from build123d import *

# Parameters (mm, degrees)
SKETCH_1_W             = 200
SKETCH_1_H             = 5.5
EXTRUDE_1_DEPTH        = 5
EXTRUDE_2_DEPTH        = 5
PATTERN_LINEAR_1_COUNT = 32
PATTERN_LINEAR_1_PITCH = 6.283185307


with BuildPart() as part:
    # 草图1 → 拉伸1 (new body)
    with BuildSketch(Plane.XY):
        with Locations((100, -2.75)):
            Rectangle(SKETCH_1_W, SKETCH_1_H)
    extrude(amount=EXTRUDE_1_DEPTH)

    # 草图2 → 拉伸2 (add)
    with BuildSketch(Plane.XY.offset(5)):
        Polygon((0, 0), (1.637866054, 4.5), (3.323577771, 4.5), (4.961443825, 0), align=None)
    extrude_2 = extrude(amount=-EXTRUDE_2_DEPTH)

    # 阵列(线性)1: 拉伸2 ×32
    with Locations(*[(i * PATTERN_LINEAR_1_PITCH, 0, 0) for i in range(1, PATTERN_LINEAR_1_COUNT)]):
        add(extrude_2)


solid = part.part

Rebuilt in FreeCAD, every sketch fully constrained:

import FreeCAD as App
import Part
import Sketcher
Q = App.Units.Quantity


def add_polygon(sketch, points):
    """Adds a closed chain of lines whose ends are joined by coincident constraints."""
    first, n = sketch.GeometryCount, len(points)
    for a, b in zip(points, points[1:] + points[:1]):
        sketch.addGeometry(Part.LineSegment(App.Vector(*a, 0), App.Vector(*b, 0)), False)
    for i in range(n):
        sketch.addConstraint(Sketcher.Constraint("Coincident", first + i, 2, first + (i + 1) % n, 1))

doc = App.newDocument("Part")
body = doc.addObject("PartDesign::Body", "Body")

# Sketch on XY plane
sketch1 = body.newObject("Sketcher::SketchObject", "Sketch")
sketch1.AttachmentSupport = (doc.getObject("XY_Plane"), [""])
sketch1.MapMode = "FlatFace"
add_polygon(sketch1, [(0, 0), (0, -5.5), (200, -5.5), (200, 0)])  # lines 0-3
sketch1.addConstraint([
    Sketcher.Constraint("Vertical", 0),
    Sketcher.Constraint("Horizontal", 1),
    Sketcher.Constraint("Vertical", 2),
    Sketcher.Constraint("Horizontal", 3),
    Sketcher.Constraint("Coincident", 3, 2, -1, 1),
    Sketcher.Constraint("DistanceX", 1, 1, 1, 2, 200.0),
    Sketcher.Constraint("DistanceY", 0, 2, 0, 1, 5.5),
])
pad1 = body.newObject("PartDesign::Pad", "Pad")
pad1.Profile = sketch1
pad1.Length = 5

# Sketch on XY plane
sketch2 = body.newObject("Sketcher::SketchObject", "Sketch001")
sketch2.AttachmentSupport = (doc.getObject("XY_Plane"), [""])
sketch2.MapMode = "FlatFace"
sketch2.AttachmentOffset = App.Placement(App.Vector(0, 0, 5), App.Rotation())
add_polygon(sketch2, [(1.637866, 4.5), (0, 0), (4.961444, 0), (3.323578, 4.5)])  # lines 0-3
sketch2.addConstraint([
    Sketcher.Constraint("Horizontal", 1),
    Sketcher.Constraint("Horizontal", 3),
    Sketcher.Constraint("Coincident", 0, 2, -1, 1),
    Sketcher.Constraint("Equal", 0, 2),
    Sketcher.Constraint("Angle", 0, Q("-110 deg")),
    Sketcher.Constraint("DistanceY", -1, 1, 2, 2, 4.5),
    Sketcher.Constraint("DistanceX", 3, 2, 3, 1, 1.685712),
])
pad2 = body.newObject("PartDesign::Pad", "Pad001")
pad2.Profile = sketch2
pad2.Length = 5
pad2.Reversed = True
doc.recompute()

linearpattern = body.newObject("PartDesign::LinearPattern", "LinearPattern")
linearpattern.Originals = [pad2]
linearpattern.Direction = (doc.getObject("X_Axis"), [""])
linearpattern.Mode = "offset"
linearpattern.Offset = 6.283185
linearpattern.Occurrences = 32
body.Tip = linearpattern

doc.recompute()
